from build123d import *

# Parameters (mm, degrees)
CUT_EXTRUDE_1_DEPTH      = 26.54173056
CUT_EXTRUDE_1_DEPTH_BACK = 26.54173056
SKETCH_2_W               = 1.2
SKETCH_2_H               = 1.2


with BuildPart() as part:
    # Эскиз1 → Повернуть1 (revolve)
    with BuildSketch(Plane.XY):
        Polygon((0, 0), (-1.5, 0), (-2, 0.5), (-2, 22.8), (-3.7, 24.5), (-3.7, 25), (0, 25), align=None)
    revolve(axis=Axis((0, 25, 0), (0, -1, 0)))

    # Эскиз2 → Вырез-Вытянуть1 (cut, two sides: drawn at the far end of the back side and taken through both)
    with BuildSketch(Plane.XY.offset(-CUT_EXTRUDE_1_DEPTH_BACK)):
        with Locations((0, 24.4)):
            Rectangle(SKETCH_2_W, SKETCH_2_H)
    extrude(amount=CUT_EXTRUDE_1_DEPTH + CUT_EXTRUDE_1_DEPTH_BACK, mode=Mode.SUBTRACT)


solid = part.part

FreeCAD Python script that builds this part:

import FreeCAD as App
import Part
import Sketcher
Q = App.Units.Quantity


def add_polygon(sketch, points):
    """Adds a closed chain of lines whose ends are joined by coincident constraints."""
    first, n = sketch.GeometryCount, len(points)
    for a, b in zip(points, points[1:] + points[:1]):
        sketch.addGeometry(Part.LineSegment(App.Vector(*a, 0), App.Vector(*b, 0)), False)
    for i in range(n):
        sketch.addConstraint(Sketcher.Constraint("Coincident", first + i, 2, first + (i + 1) % n, 1))

doc = App.newDocument("Part")
params = doc.addObject("Spreadsheet::Sheet", "Params")
for row, (alias, value) in enumerate([
    ("sketch1_height", "25 mm"),
    ("sketch1_width", "1.5 mm"),
    ("sketch1_width2", "3.7 mm"),
    ("sketch1_height2", "0.5 mm"),
    ("revolution_angle", "360 deg"),
    ("sketch2_width", "1.2 mm"),
], start=1):
    params.set(f"A{row}", alias)
    params.set(f"B{row}", "=" + value)
    params.setAlias(f"B{row}", alias)

body = doc.addObject("PartDesign::Body", "Body")

# Sketch on XY plane
sketch1 = doc.addObject("Sketcher::SketchObject", "Sketch")
body.addObject(sketch1)
sketch1.AttachmentSupport = (doc.XY_Plane, [""])
sketch1.MapMode = "FlatFace"
add_polygon(sketch1, [(-1.5, 0), (0, 0), (0, 25), (-3.7, 25), (-3.7, 24.5), (-2, 22.8), (-2, 0.5)])  # lines 0-6
sketch1.addConstraint([
    Sketcher.Constraint("Horizontal", 0),
    Sketcher.Constraint("Vertical", 1),
    Sketcher.Constraint("Horizontal", 2),
    Sketcher.Constraint("Vertical", 3),
    Sketcher.Constraint("Vertical", 5),
    Sketcher.Constraint("Coincident", 0, 2, -1, 1),
    Sketcher.Constraint("Parallel", 4, 6),
    Sketcher.Constraint("DistanceY", 1, 1, 1, 2, Q("25 mm")),
    Sketcher.Constraint("Angle", 4, Q("-45 deg")),
    Sketcher.Constraint("DistanceX", 0, 1, 0, 2, Q("1.5 mm")),
    Sketcher.Constraint("DistanceX", 2, 2, 2, 1, Q("3.7 mm")),
    Sketcher.Constraint("DistanceY", 3, 2, 3, 1, Q("0.5 mm")),
    Sketcher.Constraint("DistanceX", 4, 2, -1, 1, Q("2 mm")),
])
sketch1.setExpression("Constraints[14]", "Params.sketch1_height")
sketch1.setExpression("Constraints[16]", "Params.sketch1_width")
sketch1.setExpression("Constraints[17]", "Params.sketch1_width2")
sketch1.setExpression("Constraints[18]", "Params.sketch1_height2")
revolution = doc.addObject("PartDesign::Revolution", "Revolution")
body.addObject(revolution)
revolution.Profile = sketch1
revolution.ReferenceAxis = (sketch1, ["V_Axis"])
revolution.setExpression("Angle", "Params.revolution_angle")

# Sketch on XY plane
sketch2 = doc.addObject("Sketcher::SketchObject", "Sketch001")
body.addObject(sketch2)
sketch2.AttachmentSupport = (doc.XY_Plane, [""])
sketch2.MapMode = "FlatFace"
add_polygon(sketch2, [(-0.6, 25), (-0.6, 23.8), (0.6, 23.8), (0.6, 25)])  # lines 0-3
sketch2.addConstraint([
    Sketcher.Constraint("Vertical", 0),
    Sketcher.Constraint("Horizontal", 1),
    Sketcher.Constraint("Vertical", 2),
    Sketcher.Constraint("Horizontal", 3),
    Sketcher.Constraint("Equal", 3, 0),
    Sketcher.Constraint("DistanceX", 1, 1, 1, 2, Q("1.2 mm")),
    Sketcher.Constraint("DistanceY", -1, 1, 2, 2, Q("25 mm")),
    Sketcher.Constraint("DistanceX", 0, 2, -1, 1, Q("0.6 mm")),
])
sketch2.setExpression("Constraints[9]", "Params.sketch2_width")
pocket1 = doc.addObject("PartDesign::Pocket", "Pocket")
body.addObject(pocket1)
pocket1.Profile = sketch2
pocket1.Type = "ThroughAll"
pocket1.Midplane = True

doc.recompute()
